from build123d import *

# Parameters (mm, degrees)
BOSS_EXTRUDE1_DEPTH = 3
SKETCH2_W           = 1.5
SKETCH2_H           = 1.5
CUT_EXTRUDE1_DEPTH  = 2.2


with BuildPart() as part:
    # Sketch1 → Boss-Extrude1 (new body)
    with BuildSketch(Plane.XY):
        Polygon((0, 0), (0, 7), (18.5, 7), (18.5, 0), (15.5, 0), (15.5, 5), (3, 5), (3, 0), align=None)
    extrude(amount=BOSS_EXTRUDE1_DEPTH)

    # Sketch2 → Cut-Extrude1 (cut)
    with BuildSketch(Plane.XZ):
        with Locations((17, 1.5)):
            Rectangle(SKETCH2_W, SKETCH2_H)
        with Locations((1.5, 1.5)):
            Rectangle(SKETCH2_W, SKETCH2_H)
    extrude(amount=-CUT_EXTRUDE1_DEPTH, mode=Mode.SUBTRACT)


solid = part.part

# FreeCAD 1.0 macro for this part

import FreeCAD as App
import Part
import Sketcher
from FreeCAD import Vector
Q = App.Units.Quantity

doc = App.newDocument("Part")
body = doc.addObject("PartDesign::Body", "Body")

sketch1 = body.newObject("Sketcher::SketchObject", "Sketch")
sketch1.AttachmentSupport = (doc.getObject("XY_Plane"), [""])
sketch1.MapMode = "FlatFace"
sketch1.addGeometry([
    Part.LineSegment(Vector(0, 7, 0), Vector(0, 0, 0)),
    Part.LineSegment(Vector(0, 0, 0), Vector(3, 0, 0)),
    Part.LineSegment(Vector(3, 0, 0), Vector(3, 5, 0)),
    Part.LineSegment(Vector(3, 5, 0), Vector(15.5, 5, 0)),
    Part.LineSegment(Vector(15.5, 5, 0), Vector(15.5, 0, 0)),
    Part.LineSegment(Vector(15.5, 0, 0), Vector(18.5, 0, 0)),
    Part.LineSegment(Vector(18.5, 0, 0), Vector(18.5, 7, 0)),
    Part.LineSegment(Vector(18.5, 7, 0), Vector(0, 7, 0)),
], False)
sketch1.addConstraint([
    Sketcher.Constraint("Coincident", 0, 2, 1, 1),
    Sketcher.Constraint("Coincident", 1, 2, 2, 1),
    Sketcher.Constraint("Coincident", 2, 2, 3, 1),
    Sketcher.Constraint("Coincident", 3, 2, 4, 1),
    Sketcher.Constraint("Coincident", 4, 2, 5, 1),
    Sketcher.Constraint("Coincident", 5, 2, 6, 1),
    Sketcher.Constraint("Coincident", 6, 2, 7, 1),
    Sketcher.Constraint("Coincident", 7, 2, 0, 1),
    Sketcher.Constraint("Vertical", 0),
    Sketcher.Constraint("Horizontal", 1),
    Sketcher.Constraint("Vertical", 2),
    Sketcher.Constraint("Horizontal", 3),
    Sketcher.Constraint("Vertical", 4),
    Sketcher.Constraint("Horizontal", 5),
    Sketcher.Constraint("Vertical", 6),
    Sketcher.Constraint("Horizontal", 7),
    Sketcher.Constraint("Coincident", 0, 2, -1, 1),
    Sketcher.Constraint("PointOnObject", 4, 2, -1),
    Sketcher.Constraint("Equal", 1, 5),
    Sketcher.Constraint("DistanceX", 1, 1, 1, 2, Q("3 mm")),
    Sketcher.Constraint("DistanceY", 0, 2, 0, 1, Q("7 mm")),
    Sketcher.Constraint("DistanceY", 2, 1, 2, 2, Q("5 mm")),
    Sketcher.Constraint("DistanceX", 3, 1, 3, 2, Q("12.5 mm")),
])
pad1 = body.newObject("PartDesign::Pad", "Pad")
pad1.Profile = sketch1
pad1.Length = 3

sketch2 = body.newObject("Sketcher::SketchObject", "Sketch001")
sketch2.AttachmentSupport = (doc.getObject("XZ_Plane"), [""])
sketch2.MapMode = "FlatFace"
sketch2.addGeometry([
    Part.LineSegment(Vector(16.25, 2.25, 0), Vector(16.25, 0.75, 0)),
    Part.LineSegment(Vector(16.25, 0.75, 0), Vector(17.75, 0.75, 0)),
    Part.LineSegment(Vector(17.75, 0.75, 0), Vector(17.75, 2.25, 0)),
    Part.LineSegment(Vector(17.75, 2.25, 0), Vector(16.25, 2.25, 0)),
    Part.LineSegment(Vector(0.75, 2.25, 0), Vector(0.75, 0.75, 0)),
    Part.LineSegment(Vector(0.75, 0.75, 0), Vector(2.25, 0.75, 0)),
    Part.LineSegment(Vector(2.25, 0.75, 0), Vector(2.25, 2.25, 0)),
    Part.LineSegment(Vector(2.25, 2.25, 0), Vector(0.75, 2.25, 0)),
], False)
sketch2.addConstraint([
    Sketcher.Constraint("Coincident", 0, 2, 1, 1),
    Sketcher.Constraint("Coincident", 1, 2, 2, 1),
    Sketcher.Constraint("Coincident", 2, 2, 3, 1),
    Sketcher.Constraint("Coincident", 3, 2, 0, 1),
    Sketcher.Constraint("Coincident", 4, 2, 5, 1),
    Sketcher.Constraint("Coincident", 5, 2, 6, 1),
    Sketcher.Constraint("Coincident", 6, 2, 7, 1),
    Sketcher.Constraint("Coincident", 7, 2, 4, 1),
    Sketcher.Constraint("Vertical", 0),
    Sketcher.Constraint("Horizontal", 1),
    Sketcher.Constraint("Vertical", 2),
    Sketcher.Constraint("Horizontal", 3),
    Sketcher.Constraint("Vertical", 4),
    Sketcher.Constraint("Horizontal", 5),
    Sketcher.Constraint("Vertical", 6),
    Sketcher.Constraint("Horizontal", 7),
    Sketcher.Constraint("Horizontal", 1, 2, 4, 2),
    Sketcher.Constraint("Horizontal", 3, 2, 6, 2),
    Sketcher.Constraint("Equal", 3, 5),
    Sketcher.Constraint("Equal", 7, 0),
    Sketcher.Constraint("DistanceX", 1, 1, 1, 2, Q("1.5 mm")),
    Sketcher.Constraint("DistanceX", 4, 2, 1, 2, Q("17 mm")),
    Sketcher.Constraint("DistanceX", -1, 1, 0, 2, Q("16.25 mm")),
    Sketcher.Constraint("DistanceY", -1, 1, 0, 2, Q("0.75 mm")),
])
pocket1 = body.newObject("PartDesign::Pocket", "Pocket")
pocket1.Profile = sketch2
pocket1.Length = 2.2

doc.recompute()
